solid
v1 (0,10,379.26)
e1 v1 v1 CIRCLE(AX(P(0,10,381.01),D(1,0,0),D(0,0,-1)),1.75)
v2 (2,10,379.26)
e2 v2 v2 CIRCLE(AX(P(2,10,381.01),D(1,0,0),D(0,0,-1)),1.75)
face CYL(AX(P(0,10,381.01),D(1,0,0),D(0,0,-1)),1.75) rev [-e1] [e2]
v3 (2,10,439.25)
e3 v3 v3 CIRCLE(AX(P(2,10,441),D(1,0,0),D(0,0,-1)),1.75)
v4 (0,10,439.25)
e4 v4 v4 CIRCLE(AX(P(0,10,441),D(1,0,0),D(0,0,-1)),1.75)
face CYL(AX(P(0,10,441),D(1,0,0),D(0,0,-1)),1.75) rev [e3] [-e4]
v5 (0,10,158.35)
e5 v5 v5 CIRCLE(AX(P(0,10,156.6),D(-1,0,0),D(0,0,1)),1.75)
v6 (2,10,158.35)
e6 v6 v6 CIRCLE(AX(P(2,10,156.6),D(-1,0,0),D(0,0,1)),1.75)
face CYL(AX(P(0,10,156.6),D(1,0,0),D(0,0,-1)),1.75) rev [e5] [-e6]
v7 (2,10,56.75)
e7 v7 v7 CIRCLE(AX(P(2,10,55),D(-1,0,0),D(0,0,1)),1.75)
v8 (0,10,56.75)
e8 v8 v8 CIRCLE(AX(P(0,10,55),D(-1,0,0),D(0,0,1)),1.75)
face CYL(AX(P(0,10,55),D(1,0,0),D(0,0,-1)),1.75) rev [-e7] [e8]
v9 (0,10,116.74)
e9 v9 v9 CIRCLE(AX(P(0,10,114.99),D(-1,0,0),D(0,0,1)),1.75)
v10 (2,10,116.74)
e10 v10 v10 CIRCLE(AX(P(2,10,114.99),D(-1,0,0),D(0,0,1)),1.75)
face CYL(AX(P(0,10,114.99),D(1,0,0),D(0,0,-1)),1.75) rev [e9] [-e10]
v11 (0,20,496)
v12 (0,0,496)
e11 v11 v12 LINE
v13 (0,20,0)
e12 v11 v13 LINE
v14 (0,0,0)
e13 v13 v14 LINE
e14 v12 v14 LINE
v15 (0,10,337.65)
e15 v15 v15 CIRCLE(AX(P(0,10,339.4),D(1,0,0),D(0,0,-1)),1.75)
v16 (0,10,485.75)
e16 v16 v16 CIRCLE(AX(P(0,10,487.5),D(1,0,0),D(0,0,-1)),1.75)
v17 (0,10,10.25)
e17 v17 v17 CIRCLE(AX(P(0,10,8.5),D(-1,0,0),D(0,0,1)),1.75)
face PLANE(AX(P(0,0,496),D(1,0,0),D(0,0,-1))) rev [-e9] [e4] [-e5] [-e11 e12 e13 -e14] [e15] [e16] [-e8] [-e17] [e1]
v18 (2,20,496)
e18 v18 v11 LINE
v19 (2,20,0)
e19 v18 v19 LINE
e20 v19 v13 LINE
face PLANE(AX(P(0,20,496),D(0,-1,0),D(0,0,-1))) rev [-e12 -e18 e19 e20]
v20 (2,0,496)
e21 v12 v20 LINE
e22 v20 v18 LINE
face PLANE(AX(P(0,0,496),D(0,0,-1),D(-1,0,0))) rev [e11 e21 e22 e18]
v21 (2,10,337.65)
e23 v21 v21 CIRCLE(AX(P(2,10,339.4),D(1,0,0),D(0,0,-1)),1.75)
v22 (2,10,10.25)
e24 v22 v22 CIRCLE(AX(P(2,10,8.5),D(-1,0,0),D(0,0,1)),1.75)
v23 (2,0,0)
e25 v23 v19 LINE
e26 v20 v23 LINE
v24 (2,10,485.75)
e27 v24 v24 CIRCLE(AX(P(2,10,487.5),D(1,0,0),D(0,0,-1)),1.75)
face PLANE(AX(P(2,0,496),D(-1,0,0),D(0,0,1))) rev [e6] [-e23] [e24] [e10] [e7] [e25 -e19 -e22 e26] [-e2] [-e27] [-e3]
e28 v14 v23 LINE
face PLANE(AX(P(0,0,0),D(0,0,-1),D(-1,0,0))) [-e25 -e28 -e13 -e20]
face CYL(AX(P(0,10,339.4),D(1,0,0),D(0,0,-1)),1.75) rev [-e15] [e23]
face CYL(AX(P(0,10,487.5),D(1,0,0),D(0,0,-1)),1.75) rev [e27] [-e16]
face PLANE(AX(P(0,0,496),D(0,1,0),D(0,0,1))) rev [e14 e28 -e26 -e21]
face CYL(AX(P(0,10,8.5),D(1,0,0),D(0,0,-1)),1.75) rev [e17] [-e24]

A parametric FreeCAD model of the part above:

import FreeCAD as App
import Part
import Sketcher
from FreeCAD import Vector
Q = App.Units.Quantity

doc = App.newDocument("Part")
body = doc.addObject("PartDesign::Body", "Body")

# Sketch on XY plane
sketch1 = body.newObject("Sketcher::SketchObject", "Sketch")
sketch1.AttachmentSupport = (doc.getObject("XY_Plane"), [""])
sketch1.MapMode = "FlatFace"
sketch1.addGeometry(Part.LineSegment(Vector(0, 20, 0), Vector(0, 0, 0)), False)
sketch1.addGeometry(Part.LineSegment(Vector(0, 0, 0), Vector(2, 0, 0)), False)
sketch1.addGeometry(Part.LineSegment(Vector(2, 0, 0), Vector(2, 20, 0)), False)
sketch1.addGeometry(Part.LineSegment(Vector(2, 20, 0), Vector(0, 20, 0)), False)
sketch1.addConstraint(Sketcher.Constraint("Coincident", 0, 2, 1, 1))
sketch1.addConstraint(Sketcher.Constraint("Coincident", 1, 2, 2, 1))
sketch1.addConstraint(Sketcher.Constraint("Coincident", 2, 2, 3, 1))
sketch1.addConstraint(Sketcher.Constraint("Coincident", 3, 2, 0, 1))
sketch1.addConstraint(Sketcher.Constraint("Vertical", 0))
sketch1.addConstraint(Sketcher.Constraint("Horizontal", 1))
sketch1.addConstraint(Sketcher.Constraint("Vertical", 2))
sketch1.addConstraint(Sketcher.Constraint("Horizontal", 3))
sketch1.addConstraint(Sketcher.Constraint("Coincident", 0, 2, -1, 1))
sketch1.addConstraint(Sketcher.Constraint("DistanceX", 1, 1, 1, 2, Q("2 mm")))
sketch1.addConstraint(Sketcher.Constraint("DistanceY", 0, 2, 0, 1, Q("20 mm")))
pad1 = body.newObject("PartDesign::Pad", "Pad")
pad1.Profile = sketch1
pad1.Length = 496

# Sketch on YZ plane
sketch2 = body.newObject("Sketcher::SketchObject", "Sketch001")
sketch2.AttachmentSupport = (doc.getObject("YZ_Plane"), [""])
sketch2.MapMode = "FlatFace"
sketch2.AttachmentOffset = App.Placement(Vector(0, 0, 2), App.Rotation())
sketch2.addGeometry(Part.Circle(Vector(10, 487.5, 0), Vector(0, 0, 1), 1.75), False)
sketch2.addGeometry(Part.Circle(Vector(10, 441, 0), Vector(0, 0, 1), 1.75), False)
sketch2.addGeometry(Part.Circle(Vector(10, 381.01, 0), Vector(0, 0, 1), 1.75), False)
sketch2.addGeometry(Part.Circle(Vector(10, 339.4, 0), Vector(0, 0, 1), 1.75), False)
sketch2.addConstraint(Sketcher.Constraint("Equal", 0, 1))
sketch2.addConstraint(Sketcher.Constraint("Equal", 1, 2))
sketch2.addConstraint(Sketcher.Constraint("Equal", 2, 3))
sketch2.addConstraint(Sketcher.Constraint("Vertical", 0, 3, 1, 3))
sketch2.addConstraint(Sketcher.Constraint("Vertical", 1, 3, 2, 3))
sketch2.addConstraint(Sketcher.Constraint("Vertical", 2, 3, 3, 3))
sketch2.addConstraint(Sketcher.Constraint("Diameter", 0, Q("3.5 mm")))
sketch2.addConstraint(Sketcher.Constraint("DistanceX", -1, 1, 0, 3, Q("10 mm")))
sketch2.addConstraint(Sketcher.Constraint("DistanceY", -1, 1, 1, 3, Q("441 mm")))
sketch2.addConstraint(Sketcher.Constraint("DistanceY", -1, 1, 0, 3, Q("487.5 mm")))
sketch2.addConstraint(Sketcher.Constraint("DistanceY", -1, 1, 3, 3, Q("339.4 mm")))
sketch2.addConstraint(Sketcher.Constraint("DistanceY", -1, 1, 2, 3, Q("381.01 mm")))
pocket1 = body.newObject("PartDesign::Pocket", "Pocket")
pocket1.Profile = sketch2
pocket1.Type = "ThroughAll"
doc.recompute()

datumplane = body.newObject("PartDesign::Plane", "DatumPlane")
datumplane.AttachmentSupport = (doc.getObject("XY_Plane"), [""])
datumplane.MapMode = "FlatFace"
datumplane.AttachmentOffset = App.Placement(Vector(0, 0, 248), App.Rotation())
mirrored = body.newObject("PartDesign::Mirrored", "Mirrored")
mirrored.Originals = [pocket1]
mirrored.MirrorPlane = (datumplane, [""])
body.Tip = mirrored

doc.recompute()
